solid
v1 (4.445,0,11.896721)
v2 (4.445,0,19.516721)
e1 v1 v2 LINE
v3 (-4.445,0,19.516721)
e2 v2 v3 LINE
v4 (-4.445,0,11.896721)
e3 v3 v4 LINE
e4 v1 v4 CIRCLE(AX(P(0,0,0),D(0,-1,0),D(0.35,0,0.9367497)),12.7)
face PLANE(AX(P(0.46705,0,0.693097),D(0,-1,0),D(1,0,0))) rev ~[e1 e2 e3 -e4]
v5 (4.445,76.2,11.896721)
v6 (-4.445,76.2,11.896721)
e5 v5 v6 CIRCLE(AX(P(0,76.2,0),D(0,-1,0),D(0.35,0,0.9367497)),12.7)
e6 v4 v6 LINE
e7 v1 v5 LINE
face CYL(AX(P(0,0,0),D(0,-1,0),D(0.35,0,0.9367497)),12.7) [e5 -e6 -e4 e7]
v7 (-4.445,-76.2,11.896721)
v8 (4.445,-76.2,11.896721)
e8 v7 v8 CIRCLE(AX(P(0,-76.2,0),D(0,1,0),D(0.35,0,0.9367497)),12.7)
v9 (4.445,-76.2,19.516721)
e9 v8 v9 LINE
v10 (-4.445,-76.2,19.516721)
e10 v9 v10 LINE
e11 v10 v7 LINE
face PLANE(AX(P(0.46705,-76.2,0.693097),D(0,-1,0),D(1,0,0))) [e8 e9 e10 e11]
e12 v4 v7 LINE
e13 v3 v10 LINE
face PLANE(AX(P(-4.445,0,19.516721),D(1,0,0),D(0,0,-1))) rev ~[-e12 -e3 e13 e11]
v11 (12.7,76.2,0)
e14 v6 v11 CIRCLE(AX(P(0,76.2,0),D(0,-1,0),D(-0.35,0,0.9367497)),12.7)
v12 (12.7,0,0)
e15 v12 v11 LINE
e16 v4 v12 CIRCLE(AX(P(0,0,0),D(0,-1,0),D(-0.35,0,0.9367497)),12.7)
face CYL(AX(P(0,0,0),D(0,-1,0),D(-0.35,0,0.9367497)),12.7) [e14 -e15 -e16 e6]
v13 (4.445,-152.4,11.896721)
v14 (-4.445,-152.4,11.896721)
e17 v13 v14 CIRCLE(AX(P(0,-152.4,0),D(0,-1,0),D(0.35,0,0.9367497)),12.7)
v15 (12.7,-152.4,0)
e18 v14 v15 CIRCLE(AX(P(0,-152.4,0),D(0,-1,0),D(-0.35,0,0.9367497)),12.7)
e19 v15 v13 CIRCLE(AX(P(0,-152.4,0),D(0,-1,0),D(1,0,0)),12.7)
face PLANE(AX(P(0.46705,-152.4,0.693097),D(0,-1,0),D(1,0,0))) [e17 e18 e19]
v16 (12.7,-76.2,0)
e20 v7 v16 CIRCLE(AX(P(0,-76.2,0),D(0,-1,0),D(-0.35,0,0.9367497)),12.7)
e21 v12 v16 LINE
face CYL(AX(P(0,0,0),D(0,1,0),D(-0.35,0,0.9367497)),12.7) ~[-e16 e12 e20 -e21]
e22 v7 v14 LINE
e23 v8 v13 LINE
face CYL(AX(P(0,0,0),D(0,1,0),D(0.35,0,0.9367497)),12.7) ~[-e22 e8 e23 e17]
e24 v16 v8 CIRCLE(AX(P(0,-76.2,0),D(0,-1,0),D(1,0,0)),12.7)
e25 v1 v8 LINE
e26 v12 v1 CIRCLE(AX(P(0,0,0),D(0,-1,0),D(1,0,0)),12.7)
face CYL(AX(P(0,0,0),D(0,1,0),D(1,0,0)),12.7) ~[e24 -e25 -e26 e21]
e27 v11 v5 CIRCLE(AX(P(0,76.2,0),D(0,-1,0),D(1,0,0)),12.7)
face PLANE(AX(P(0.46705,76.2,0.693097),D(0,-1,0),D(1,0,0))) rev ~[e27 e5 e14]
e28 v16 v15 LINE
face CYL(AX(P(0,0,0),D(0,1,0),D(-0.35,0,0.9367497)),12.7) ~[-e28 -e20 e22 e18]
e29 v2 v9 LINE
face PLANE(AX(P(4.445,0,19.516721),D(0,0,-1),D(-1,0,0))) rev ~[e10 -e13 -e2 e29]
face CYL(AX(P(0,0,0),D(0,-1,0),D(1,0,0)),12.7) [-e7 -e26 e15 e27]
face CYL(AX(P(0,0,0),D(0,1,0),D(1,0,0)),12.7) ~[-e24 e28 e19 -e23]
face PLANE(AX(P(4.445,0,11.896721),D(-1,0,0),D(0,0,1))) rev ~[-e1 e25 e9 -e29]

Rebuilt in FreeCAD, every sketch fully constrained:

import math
import FreeCAD as App
import Part
import Sketcher
Q = App.Units.Quantity

doc = App.newDocument("Part")
body = doc.addObject("PartDesign::Body", "Body")

sketch1 = body.newObject("Sketcher::SketchObject", "Sketch")
sketch1.AttachmentSupport = (doc.getObject("XZ_Plane"), [""])
sketch1.MapMode = "FlatFace"
sketch1.addGeometry(Part.ArcOfCircle(Part.Circle(App.Vector(0, 0, 0), App.Vector(0, 0, 1), 13), math.radians(110), math.radians(360)), False)
sketch1.addGeometry(Part.ArcOfCircle(Part.Circle(App.Vector(0, 0, 0), App.Vector(0, 0, 1), 13), math.radians(0), math.radians(70)), False)
sketch1.addGeometry(Part.LineSegment(App.Vector(4, 12, 0), App.Vector(4, 20, 0)), False)
sketch1.addGeometry(Part.LineSegment(App.Vector(4, 20, 0), App.Vector(-4, 20, 0)), False)
sketch1.addGeometry(Part.LineSegment(App.Vector(-4, 20, 0), App.Vector(-4, 12, 0)), False)
sketch1.addConstraint(Sketcher.Constraint("Tangent", 0, 2, 1, 1))
sketch1.addConstraint(Sketcher.Constraint("Coincident", 1, 2, 2, 1))
sketch1.addConstraint(Sketcher.Constraint("Coincident", 2, 2, 3, 1))
sketch1.addConstraint(Sketcher.Constraint("Coincident", 3, 2, 4, 1))
sketch1.addConstraint(Sketcher.Constraint("Coincident", 4, 2, 0, 1))
sketch1.addConstraint(Sketcher.Constraint("Vertical", 2))
sketch1.addConstraint(Sketcher.Constraint("Horizontal", 3))
sketch1.addConstraint(Sketcher.Constraint("Vertical", 4))
sketch1.addConstraint(Sketcher.Constraint("Coincident", 0, 3, -1, 1))
sketch1.addConstraint(Sketcher.Constraint("Equal", 0, 1))
sketch1.addConstraint(Sketcher.Constraint("PointOnObject", 0, 2, -1))
sketch1.addConstraint(Sketcher.Constraint("Horizontal", 1, 2, 4, 2))
sketch1.addConstraint(Sketcher.Constraint("Radius", 0, Q("0.5 in")))
sketch1.addConstraint(Sketcher.Constraint("DistanceY", 2, 1, 2, 2, Q("0.3 in")))
sketch1.addConstraint(Sketcher.Constraint("DistanceX", 3, 2, 3, 1, Q("0.35 in")))
pad1 = body.newObject("PartDesign::Pad", "Pad")
pad1.Profile = sketch1
pad1.Length = Q("3 in")

sketch2 = body.newObject("Sketcher::SketchObject", "Sketch001")
sketch2.AttachmentSupport = (doc.getObject("XZ_Plane"), [""])
sketch2.MapMode = "FlatFace"
sketch2.addGeometry(Part.ArcOfCircle(Part.Circle(App.Vector(0, 0, 0), App.Vector(0, 0, 1), 13), math.radians(110), math.radians(360)), False)
sketch2.addGeometry(Part.ArcOfCircle(Part.Circle(App.Vector(0, 0, 0), App.Vector(0, 0, 1), 13), math.radians(0), math.radians(70)), False)
sketch2.addGeometry(Part.ArcOfCircle(Part.Circle(App.Vector(0, 0, 0), App.Vector(0, 0, 1), 13), math.radians(70), math.radians(110)), False)
sketch2.addConstraint(Sketcher.Constraint("Tangent", 0, 2, 1, 1))
sketch2.addConstraint(Sketcher.Constraint("Tangent", 1, 2, 2, 1))
sketch2.addConstraint(Sketcher.Constraint("Tangent", 2, 2, 0, 1))
sketch2.addConstraint(Sketcher.Constraint("Coincident", 0, 3, -1, 1))
sketch2.addConstraint(Sketcher.Constraint("PointOnObject", 0, 2, -1))
sketch2.addConstraint(Sketcher.Constraint("Horizontal", 1, 2, 2, 2))
sketch2.addConstraint(Sketcher.Constraint("Radius", 0, Q("0.5 in")))
sketch2.addConstraint(Sketcher.Constraint("DistanceX", 2, 2, 1, 2, Q("0.35 in")))
pad2 = body.newObject("PartDesign::Pad", "Pad001")
pad2.Profile = sketch2
pad2.Type = "TwoLengths"
pad2.Length = Q("3 in")
pad2.Length2 = Q("6 in")
pad2.Reversed = True

doc.recompute()
